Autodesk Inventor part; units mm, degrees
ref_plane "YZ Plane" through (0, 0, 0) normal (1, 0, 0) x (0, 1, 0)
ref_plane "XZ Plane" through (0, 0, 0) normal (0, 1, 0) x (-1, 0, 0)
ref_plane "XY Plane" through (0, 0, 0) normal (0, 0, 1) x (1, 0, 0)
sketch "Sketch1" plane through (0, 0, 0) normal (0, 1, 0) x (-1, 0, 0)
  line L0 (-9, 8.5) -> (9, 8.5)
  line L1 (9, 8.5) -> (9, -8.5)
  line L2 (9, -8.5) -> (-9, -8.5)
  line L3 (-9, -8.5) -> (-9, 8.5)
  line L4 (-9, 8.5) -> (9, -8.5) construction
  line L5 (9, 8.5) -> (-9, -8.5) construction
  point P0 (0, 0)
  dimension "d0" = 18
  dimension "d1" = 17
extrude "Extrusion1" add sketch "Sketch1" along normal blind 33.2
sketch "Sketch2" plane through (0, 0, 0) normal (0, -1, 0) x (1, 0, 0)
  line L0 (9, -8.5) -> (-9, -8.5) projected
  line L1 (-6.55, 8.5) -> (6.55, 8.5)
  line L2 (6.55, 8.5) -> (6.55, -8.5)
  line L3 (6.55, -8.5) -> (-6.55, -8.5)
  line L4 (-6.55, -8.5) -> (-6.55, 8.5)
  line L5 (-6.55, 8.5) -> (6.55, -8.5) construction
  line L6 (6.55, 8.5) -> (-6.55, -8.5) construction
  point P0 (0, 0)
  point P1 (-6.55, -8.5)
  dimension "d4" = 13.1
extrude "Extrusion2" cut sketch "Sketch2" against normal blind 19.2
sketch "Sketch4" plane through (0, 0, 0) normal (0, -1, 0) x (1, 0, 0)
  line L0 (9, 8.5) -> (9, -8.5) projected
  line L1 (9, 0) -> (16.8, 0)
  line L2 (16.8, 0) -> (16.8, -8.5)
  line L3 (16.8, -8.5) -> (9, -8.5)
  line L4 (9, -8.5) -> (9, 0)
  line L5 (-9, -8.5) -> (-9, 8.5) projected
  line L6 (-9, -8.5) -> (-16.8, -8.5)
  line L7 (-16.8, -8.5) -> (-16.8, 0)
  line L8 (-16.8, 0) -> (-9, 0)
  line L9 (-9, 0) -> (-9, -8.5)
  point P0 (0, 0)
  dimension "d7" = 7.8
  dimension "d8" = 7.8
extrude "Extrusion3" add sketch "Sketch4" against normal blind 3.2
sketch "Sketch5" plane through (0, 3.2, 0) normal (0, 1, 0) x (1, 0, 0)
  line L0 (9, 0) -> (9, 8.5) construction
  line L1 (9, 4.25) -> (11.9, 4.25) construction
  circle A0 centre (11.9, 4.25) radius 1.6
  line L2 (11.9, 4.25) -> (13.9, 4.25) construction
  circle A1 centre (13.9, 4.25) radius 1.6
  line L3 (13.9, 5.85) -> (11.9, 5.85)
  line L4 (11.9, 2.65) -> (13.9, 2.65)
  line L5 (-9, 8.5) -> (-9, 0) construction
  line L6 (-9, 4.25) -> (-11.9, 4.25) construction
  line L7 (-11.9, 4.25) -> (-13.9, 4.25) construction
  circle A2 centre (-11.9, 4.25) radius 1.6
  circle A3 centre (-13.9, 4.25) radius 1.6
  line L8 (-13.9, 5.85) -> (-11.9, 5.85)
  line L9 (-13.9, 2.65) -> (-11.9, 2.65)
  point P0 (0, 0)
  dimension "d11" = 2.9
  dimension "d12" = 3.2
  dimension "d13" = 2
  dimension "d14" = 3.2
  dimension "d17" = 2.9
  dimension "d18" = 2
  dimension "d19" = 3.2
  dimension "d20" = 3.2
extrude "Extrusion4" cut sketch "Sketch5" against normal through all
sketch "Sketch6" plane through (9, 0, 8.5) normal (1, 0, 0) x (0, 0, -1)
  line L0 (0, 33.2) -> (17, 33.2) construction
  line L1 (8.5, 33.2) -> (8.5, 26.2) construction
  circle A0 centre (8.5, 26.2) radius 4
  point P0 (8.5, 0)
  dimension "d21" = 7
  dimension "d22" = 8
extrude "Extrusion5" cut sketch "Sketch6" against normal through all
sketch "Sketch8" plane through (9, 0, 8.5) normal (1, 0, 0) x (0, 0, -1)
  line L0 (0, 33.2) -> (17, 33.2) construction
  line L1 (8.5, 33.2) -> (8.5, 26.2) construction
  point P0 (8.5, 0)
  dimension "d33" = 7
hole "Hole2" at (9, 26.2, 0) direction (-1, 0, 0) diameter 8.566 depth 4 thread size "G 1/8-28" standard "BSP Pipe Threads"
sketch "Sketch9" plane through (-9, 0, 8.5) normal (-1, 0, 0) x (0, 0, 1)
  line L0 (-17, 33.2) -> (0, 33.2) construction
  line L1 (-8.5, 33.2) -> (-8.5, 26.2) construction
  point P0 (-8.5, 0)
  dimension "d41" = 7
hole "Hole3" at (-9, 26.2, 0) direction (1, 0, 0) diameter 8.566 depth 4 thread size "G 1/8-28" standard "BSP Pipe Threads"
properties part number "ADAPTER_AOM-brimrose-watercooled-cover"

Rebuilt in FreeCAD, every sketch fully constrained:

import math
import FreeCAD as App
import Part
import Sketcher

doc = App.newDocument("Part")
params = doc.addObject("Spreadsheet::Sheet", "Params")
for row, (alias, value) in enumerate([
    ("sketch1_width", "18 mm"),
    ("sketch1_height", "17 mm"),
    ("pad1_length", "33.2 mm"),
    ("sketch2_width", "13.1 mm"),
    ("sketch2_height", "17 mm"),
    ("pocket1_length", "19.2 mm"),
    ("sketch3_width", "7.8 mm"),
    ("sketch3_height", "8.5 mm"),
    ("pad2_length", "3.2 mm"),
    ("sketch4_radius", "1.6 mm"),
    ("sketch4_width", "2 mm"),
    ("sketch5_diameter", "8 mm"),
    ("hole_diameter", "8.566 mm"),
    ("hole_depth", "4 mm"),
    ("hole2_diameter", "8.566 mm"),
    ("hole2_depth", "4 mm"),
], start=1):
    params.set(f"A{row}", alias)
    params.set(f"B{row}", "=" + value)
    params.setAlias(f"B{row}", alias)

body = doc.addObject("PartDesign::Body", "Body")

sketch1 = body.newObject("Sketcher::SketchObject", "Sketch")
sketch1.AttachmentSupport = (doc.getObject("XZ_Plane"), [""])
sketch1.MapMode = "FlatFace"
sketch1.addGeometry(Part.LineSegment(App.Vector(-9, 8, 0), App.Vector(9, 8, 0)), False)
sketch1.addGeometry(Part.LineSegment(App.Vector(9, 8, 0), App.Vector(9, -8, 0)), False)
sketch1.addGeometry(Part.LineSegment(App.Vector(9, -8, 0), App.Vector(-9, -8, 0)), False)
sketch1.addGeometry(Part.LineSegment(App.Vector(-9, -8, 0), App.Vector(-9, 8, 0)), False)
sketch1.addConstraint(Sketcher.Constraint("Coincident", 0, 2, 1, 1))
sketch1.addConstraint(Sketcher.Constraint("Coincident", 1, 2, 2, 1))
sketch1.addConstraint(Sketcher.Constraint("Coincident", 2, 2, 3, 1))
sketch1.addConstraint(Sketcher.Constraint("Coincident", 3, 2, 0, 1))
sketch1.addConstraint(Sketcher.Constraint("Horizontal", 0))
sketch1.addConstraint(Sketcher.Constraint("Vertical", 1))
sketch1.addConstraint(Sketcher.Constraint("Horizontal", 2))
sketch1.addConstraint(Sketcher.Constraint("Vertical", 3))
sketch1.addConstraint(Sketcher.Constraint("Symmetric", 0, 2, 2, 2, -1, 1))
sketch1.addConstraint(Sketcher.Constraint("DistanceX", 0, 1, 0, 2, 18.0))
sketch1.addConstraint(Sketcher.Constraint("DistanceY", 1, 2, 1, 1, 17.0))
sketch1.setExpression("Constraints[9]", "Params.sketch1_width")
sketch1.setExpression("Constraints[10]", "Params.sketch1_height")
pad1 = body.newObject("PartDesign::Pad", "Pad")
pad1.Profile = sketch1
pad1.setExpression("Length", "Params.pad1_length")
pad1.Reversed = True

sketch2 = body.newObject("Sketcher::SketchObject", "Sketch001")
sketch2.AttachmentSupport = (doc.getObject("XZ_Plane"), [""])
sketch2.MapMode = "FlatFace"
sketch2.addGeometry(Part.LineSegment(App.Vector(-7, -8, 0), App.Vector(7, -8, 0)), False)
sketch2.addGeometry(Part.LineSegment(App.Vector(7, -8, 0), App.Vector(7, 8, 0)), False)
sketch2.addGeometry(Part.LineSegment(App.Vector(7, 8, 0), App.Vector(-7, 8, 0)), False)
sketch2.addGeometry(Part.LineSegment(App.Vector(-7, 8, 0), App.Vector(-7, -8, 0)), False)
sketch2.addConstraint(Sketcher.Constraint("Coincident", 0, 2, 1, 1))
sketch2.addConstraint(Sketcher.Constraint("Coincident", 1, 2, 2, 1))
sketch2.addConstraint(Sketcher.Constraint("Coincident", 2, 2, 3, 1))
sketch2.addConstraint(Sketcher.Constraint("Coincident", 3, 2, 0, 1))
sketch2.addConstraint(Sketcher.Constraint("Horizontal", 0))
sketch2.addConstraint(Sketcher.Constraint("Vertical", 1))
sketch2.addConstraint(Sketcher.Constraint("Horizontal", 2))
sketch2.addConstraint(Sketcher.Constraint("Vertical", 3))
sketch2.addConstraint(Sketcher.Constraint("Symmetric", 0, 2, 2, 2, -1, 1))
sketch2.addConstraint(Sketcher.Constraint("DistanceX", 0, 1, 0, 2, 13.1))
sketch2.addConstraint(Sketcher.Constraint("DistanceY", 1, 1, 1, 2, 17.0))
sketch2.setExpression("Constraints[9]", "Params.sketch2_width")
sketch2.setExpression("Constraints[10]", "Params.sketch2_height")
pocket1 = body.newObject("PartDesign::Pocket", "Pocket")
pocket1.Profile = sketch2
pocket1.setExpression("Length", "Params.pocket1_length")

sketch3 = body.newObject("Sketcher::SketchObject", "Sketch002")
sketch3.AttachmentSupport = (doc.getObject("XZ_Plane"), [""])
sketch3.MapMode = "FlatFace"
sketch3.addGeometry(Part.LineSegment(App.Vector(17, 0, 0), App.Vector(9, 0, 0)), False)
sketch3.addGeometry(Part.LineSegment(App.Vector(9, 0, 0), App.Vector(9, -8, 0)), False)
sketch3.addGeometry(Part.LineSegment(App.Vector(9, -8, 0), App.Vector(17, -8, 0)), False)
sketch3.addGeometry(Part.LineSegment(App.Vector(17, -8, 0), App.Vector(17, 0, 0)), False)
sketch3.addGeometry(Part.LineSegment(App.Vector(-17, -8, 0), App.Vector(-9, -8, 0)), False)
sketch3.addGeometry(Part.LineSegment(App.Vector(-9, -8, 0), App.Vector(-9, 0, 0)), False)
sketch3.addGeometry(Part.LineSegment(App.Vector(-9, 0, 0), App.Vector(-17, 0, 0)), False)
sketch3.addGeometry(Part.LineSegment(App.Vector(-17, 0, 0), App.Vector(-17, -8, 0)), False)
sketch3.addConstraint(Sketcher.Constraint("Coincident", 0, 2, 1, 1))
sketch3.addConstraint(Sketcher.Constraint("Coincident", 1, 2, 2, 1))
sketch3.addConstraint(Sketcher.Constraint("Coincident", 2, 2, 3, 1))
sketch3.addConstraint(Sketcher.Constraint("Coincident", 3, 2, 0, 1))
sketch3.addConstraint(Sketcher.Constraint("Coincident", 4, 2, 5, 1))
sketch3.addConstraint(Sketcher.Constraint("Coincident", 5, 2, 6, 1))
sketch3.addConstraint(Sketcher.Constraint("Coincident", 6, 2, 7, 1))
sketch3.addConstraint(Sketcher.Constraint("Coincident", 7, 2, 4, 1))
sketch3.addConstraint(Sketcher.Constraint("Horizontal", 0))
sketch3.addConstraint(Sketcher.Constraint("Vertical", 1))
sketch3.addConstraint(Sketcher.Constraint("Horizontal", 2))
sketch3.addConstraint(Sketcher.Constraint("Vertical", 3))
sketch3.addConstraint(Sketcher.Constraint("Horizontal", 4))
sketch3.addConstraint(Sketcher.Constraint("Vertical", 5))
sketch3.addConstraint(Sketcher.Constraint("Horizontal", 6))
sketch3.addConstraint(Sketcher.Constraint("Vertical", 7))
sketch3.addConstraint(Sketcher.Constraint("Symmetric", 0, 2, 5, 2, -1, 1))
sketch3.addConstraint(Sketcher.Constraint("Symmetric", 3, 2, 6, 2, -2))
sketch3.addConstraint(Sketcher.Constraint("Horizontal", 2, 2, 4, 2))
sketch3.addConstraint(Sketcher.Constraint("DistanceX", 0, 2, 0, 1, 7.8))
sketch3.addConstraint(Sketcher.Constraint("DistanceY", 1, 2, 1, 1, 8.5))
sketch3.addConstraint(Sketcher.Constraint("DistanceX", -1, 1, 0, 2, 9.0))
sketch3.setExpression("Constraints[19]", "Params.sketch3_width")
sketch3.setExpression("Constraints[20]", "Params.sketch3_height")
pad2 = body.newObject("PartDesign::Pad", "Pad001")
pad2.Profile = sketch3
pad2.setExpression("Length", "Params.pad2_length")
pad2.Reversed = True

sketch4 = body.newObject("Sketcher::SketchObject", "Sketch003")
sketch4.AttachmentSupport = (doc.getObject("XZ_Plane"), [""])
sketch4.MapMode = "FlatFace"
sketch4.AttachmentOffset = App.Placement(App.Vector(0, 0, -3.2), App.Rotation())
sketch4.addGeometry(Part.ArcOfCircle(Part.Circle(App.Vector(11.9, -4.2, 0), App.Vector(0, 0, 1), 1.6), math.radians(90), math.radians(270)), False)
sketch4.addGeometry(Part.LineSegment(App.Vector(11.9, -2.6, 0), App.Vector(13.9, -2.6, 0)), False)
sketch4.addGeometry(Part.ArcOfCircle(Part.Circle(App.Vector(13.9, -4.2, 0), App.Vector(0, 0, 1), 1.6), math.radians(-90), math.radians(90)), False)
sketch4.addGeometry(Part.LineSegment(App.Vector(13.9, -5.8, 0), App.Vector(11.9, -5.8, 0)), False)
sketch4.addGeometry(Part.ArcOfCircle(Part.Circle(App.Vector(-11.9, -4.2, 0), App.Vector(0, 0, 1), 1.6), math.radians(-90), math.radians(90)), False)
sketch4.addGeometry(Part.LineSegment(App.Vector(-11.9, -5.8, 0), App.Vector(-13.9, -5.8, 0)), False)
sketch4.addGeometry(Part.ArcOfCircle(Part.Circle(App.Vector(-13.9, -4.2, 0), App.Vector(0, 0, 1), 1.6), math.radians(90), math.radians(270)), False)
sketch4.addGeometry(Part.LineSegment(App.Vector(-13.9, -2.6, 0), App.Vector(-11.9, -2.6, 0)), False)
sketch4.addConstraint(Sketcher.Constraint("Tangent", 0, 1, 1, 1))
sketch4.addConstraint(Sketcher.Constraint("Tangent", 1, 2, 2, 2))
sketch4.addConstraint(Sketcher.Constraint("Tangent", 2, 1, 3, 1))
sketch4.addConstraint(Sketcher.Constraint("Tangent", 3, 2, 0, 2))
sketch4.addConstraint(Sketcher.Constraint("Tangent", 4, 1, 5, 1))
sketch4.addConstraint(Sketcher.Constraint("Tangent", 5, 2, 6, 2))
sketch4.addConstraint(Sketcher.Constraint("Tangent", 6, 1, 7, 1))
sketch4.addConstraint(Sketcher.Constraint("Tangent", 7, 2, 4, 2))
sketch4.addConstraint(Sketcher.Constraint("Horizontal", 1))
sketch4.addConstraint(Sketcher.Constraint("Horizontal", 3))
sketch4.addConstraint(Sketcher.Constraint("Horizontal", 5))
sketch4.addConstraint(Sketcher.Constraint("Horizontal", 7))
sketch4.addConstraint(Sketcher.Constraint("Equal", 2, 4))
sketch4.addConstraint(Sketcher.Constraint("Symmetric", 0, 3, 4, 3, -2))
sketch4.addConstraint(Sketcher.Constraint("Equal", 3, 5))
sketch4.addConstraint(Sketcher.Constraint("Radius", 0, 1.6))
sketch4.addConstraint(Sketcher.Constraint("DistanceX", 1, 1, 1, 2, 2.0))
sketch4.addConstraint(Sketcher.Constraint("DistanceX", -1, 1, 0, 3, 11.9))
sketch4.addConstraint(Sketcher.Constraint("DistanceY", 0, 3, -1, 1, 4.25))
sketch4.setExpression("Constraints[15]", "Params.sketch4_radius")
sketch4.setExpression("Constraints[16]", "Params.sketch4_width")
pocket2 = body.newObject("PartDesign::Pocket", "Pocket001")
pocket2.Profile = sketch4
pocket2.Type = "ThroughAll"
pocket2.Reversed = True

sketch5 = body.newObject("Sketcher::SketchObject", "Sketch004")
sketch5.AttachmentSupport = (doc.getObject("YZ_Plane"), [""])
sketch5.MapMode = "FlatFace"
sketch5.AttachmentOffset = App.Placement(App.Vector(0, 0, 9), App.Rotation())
sketch5.addGeometry(Part.Circle(App.Vector(26.2, 0, 0), App.Vector(0, 0, 1), 4), False)
sketch5.addConstraint(Sketcher.Constraint("PointOnObject", 0, 3, -1))
sketch5.addConstraint(Sketcher.Constraint("Diameter", 0, 8.0))
sketch5.addConstraint(Sketcher.Constraint("DistanceX", -1, 1, 0, 3, 26.2))
sketch5.setExpression("Constraints[1]", "Params.sketch5_diameter")
pocket3 = body.newObject("PartDesign::Pocket", "Pocket002")
pocket3.Profile = sketch5
pocket3.Type = "ThroughAll"

sketch6 = body.newObject("Sketcher::SketchObject", "Sketch005")
sketch6.AttachmentSupport = (doc.getObject("YZ_Plane"), [""])
sketch6.MapMode = "FlatFace"
sketch6.AttachmentOffset = App.Placement(App.Vector(0, 0, 9), App.Rotation())
sketch6.addGeometry(Part.Circle(App.Vector(26.2, 0, 0), App.Vector(0, 0, 1), 4.3), False)
sketch6.addConstraint(Sketcher.Constraint("PointOnObject", 0, 3, -1))
sketch6.addConstraint(Sketcher.Constraint("Diameter", 0, 8.566))
sketch6.addConstraint(Sketcher.Constraint("DistanceX", -1, 1, 0, 3, 26.2))
doc.recompute()
hole = body.newObject("PartDesign::Hole", "Hole")
hole.Profile = sketch6
hole.ThreadType = "None"
hole.setExpression("Diameter", "Params.hole_diameter")
hole.DepthType = "Dimension"
hole.setExpression("Depth", "Params.hole_depth")
hole.DrillPoint = "Flat"

sketch7 = body.newObject("Sketcher::SketchObject", "Sketch006")
sketch7.AttachmentSupport = (doc.getObject("YZ_Plane"), [""])
sketch7.MapMode = "FlatFace"
sketch7.AttachmentOffset = App.Placement(App.Vector(0, 0, -9), App.Rotation())
sketch7.addGeometry(Part.Circle(App.Vector(26.2, 0, 0), App.Vector(0, 0, 1), 4.3), False)
sketch7.addConstraint(Sketcher.Constraint("PointOnObject", 0, 3, -1))
sketch7.addConstraint(Sketcher.Constraint("Diameter", 0, 8.566))
sketch7.addConstraint(Sketcher.Constraint("DistanceX", -1, 1, 0, 3, 26.2))
doc.recompute()
hole2 = body.newObject("PartDesign::Hole", "Hole001")
hole2.Profile = sketch7
hole2.ThreadType = "None"
hole2.setExpression("Diameter", "Params.hole2_diameter")
hole2.DepthType = "Dimension"
hole2.setExpression("Depth", "Params.hole2_depth")
hole2.DrillPoint = "Flat"
hole2.Reversed = True

doc.recompute()
